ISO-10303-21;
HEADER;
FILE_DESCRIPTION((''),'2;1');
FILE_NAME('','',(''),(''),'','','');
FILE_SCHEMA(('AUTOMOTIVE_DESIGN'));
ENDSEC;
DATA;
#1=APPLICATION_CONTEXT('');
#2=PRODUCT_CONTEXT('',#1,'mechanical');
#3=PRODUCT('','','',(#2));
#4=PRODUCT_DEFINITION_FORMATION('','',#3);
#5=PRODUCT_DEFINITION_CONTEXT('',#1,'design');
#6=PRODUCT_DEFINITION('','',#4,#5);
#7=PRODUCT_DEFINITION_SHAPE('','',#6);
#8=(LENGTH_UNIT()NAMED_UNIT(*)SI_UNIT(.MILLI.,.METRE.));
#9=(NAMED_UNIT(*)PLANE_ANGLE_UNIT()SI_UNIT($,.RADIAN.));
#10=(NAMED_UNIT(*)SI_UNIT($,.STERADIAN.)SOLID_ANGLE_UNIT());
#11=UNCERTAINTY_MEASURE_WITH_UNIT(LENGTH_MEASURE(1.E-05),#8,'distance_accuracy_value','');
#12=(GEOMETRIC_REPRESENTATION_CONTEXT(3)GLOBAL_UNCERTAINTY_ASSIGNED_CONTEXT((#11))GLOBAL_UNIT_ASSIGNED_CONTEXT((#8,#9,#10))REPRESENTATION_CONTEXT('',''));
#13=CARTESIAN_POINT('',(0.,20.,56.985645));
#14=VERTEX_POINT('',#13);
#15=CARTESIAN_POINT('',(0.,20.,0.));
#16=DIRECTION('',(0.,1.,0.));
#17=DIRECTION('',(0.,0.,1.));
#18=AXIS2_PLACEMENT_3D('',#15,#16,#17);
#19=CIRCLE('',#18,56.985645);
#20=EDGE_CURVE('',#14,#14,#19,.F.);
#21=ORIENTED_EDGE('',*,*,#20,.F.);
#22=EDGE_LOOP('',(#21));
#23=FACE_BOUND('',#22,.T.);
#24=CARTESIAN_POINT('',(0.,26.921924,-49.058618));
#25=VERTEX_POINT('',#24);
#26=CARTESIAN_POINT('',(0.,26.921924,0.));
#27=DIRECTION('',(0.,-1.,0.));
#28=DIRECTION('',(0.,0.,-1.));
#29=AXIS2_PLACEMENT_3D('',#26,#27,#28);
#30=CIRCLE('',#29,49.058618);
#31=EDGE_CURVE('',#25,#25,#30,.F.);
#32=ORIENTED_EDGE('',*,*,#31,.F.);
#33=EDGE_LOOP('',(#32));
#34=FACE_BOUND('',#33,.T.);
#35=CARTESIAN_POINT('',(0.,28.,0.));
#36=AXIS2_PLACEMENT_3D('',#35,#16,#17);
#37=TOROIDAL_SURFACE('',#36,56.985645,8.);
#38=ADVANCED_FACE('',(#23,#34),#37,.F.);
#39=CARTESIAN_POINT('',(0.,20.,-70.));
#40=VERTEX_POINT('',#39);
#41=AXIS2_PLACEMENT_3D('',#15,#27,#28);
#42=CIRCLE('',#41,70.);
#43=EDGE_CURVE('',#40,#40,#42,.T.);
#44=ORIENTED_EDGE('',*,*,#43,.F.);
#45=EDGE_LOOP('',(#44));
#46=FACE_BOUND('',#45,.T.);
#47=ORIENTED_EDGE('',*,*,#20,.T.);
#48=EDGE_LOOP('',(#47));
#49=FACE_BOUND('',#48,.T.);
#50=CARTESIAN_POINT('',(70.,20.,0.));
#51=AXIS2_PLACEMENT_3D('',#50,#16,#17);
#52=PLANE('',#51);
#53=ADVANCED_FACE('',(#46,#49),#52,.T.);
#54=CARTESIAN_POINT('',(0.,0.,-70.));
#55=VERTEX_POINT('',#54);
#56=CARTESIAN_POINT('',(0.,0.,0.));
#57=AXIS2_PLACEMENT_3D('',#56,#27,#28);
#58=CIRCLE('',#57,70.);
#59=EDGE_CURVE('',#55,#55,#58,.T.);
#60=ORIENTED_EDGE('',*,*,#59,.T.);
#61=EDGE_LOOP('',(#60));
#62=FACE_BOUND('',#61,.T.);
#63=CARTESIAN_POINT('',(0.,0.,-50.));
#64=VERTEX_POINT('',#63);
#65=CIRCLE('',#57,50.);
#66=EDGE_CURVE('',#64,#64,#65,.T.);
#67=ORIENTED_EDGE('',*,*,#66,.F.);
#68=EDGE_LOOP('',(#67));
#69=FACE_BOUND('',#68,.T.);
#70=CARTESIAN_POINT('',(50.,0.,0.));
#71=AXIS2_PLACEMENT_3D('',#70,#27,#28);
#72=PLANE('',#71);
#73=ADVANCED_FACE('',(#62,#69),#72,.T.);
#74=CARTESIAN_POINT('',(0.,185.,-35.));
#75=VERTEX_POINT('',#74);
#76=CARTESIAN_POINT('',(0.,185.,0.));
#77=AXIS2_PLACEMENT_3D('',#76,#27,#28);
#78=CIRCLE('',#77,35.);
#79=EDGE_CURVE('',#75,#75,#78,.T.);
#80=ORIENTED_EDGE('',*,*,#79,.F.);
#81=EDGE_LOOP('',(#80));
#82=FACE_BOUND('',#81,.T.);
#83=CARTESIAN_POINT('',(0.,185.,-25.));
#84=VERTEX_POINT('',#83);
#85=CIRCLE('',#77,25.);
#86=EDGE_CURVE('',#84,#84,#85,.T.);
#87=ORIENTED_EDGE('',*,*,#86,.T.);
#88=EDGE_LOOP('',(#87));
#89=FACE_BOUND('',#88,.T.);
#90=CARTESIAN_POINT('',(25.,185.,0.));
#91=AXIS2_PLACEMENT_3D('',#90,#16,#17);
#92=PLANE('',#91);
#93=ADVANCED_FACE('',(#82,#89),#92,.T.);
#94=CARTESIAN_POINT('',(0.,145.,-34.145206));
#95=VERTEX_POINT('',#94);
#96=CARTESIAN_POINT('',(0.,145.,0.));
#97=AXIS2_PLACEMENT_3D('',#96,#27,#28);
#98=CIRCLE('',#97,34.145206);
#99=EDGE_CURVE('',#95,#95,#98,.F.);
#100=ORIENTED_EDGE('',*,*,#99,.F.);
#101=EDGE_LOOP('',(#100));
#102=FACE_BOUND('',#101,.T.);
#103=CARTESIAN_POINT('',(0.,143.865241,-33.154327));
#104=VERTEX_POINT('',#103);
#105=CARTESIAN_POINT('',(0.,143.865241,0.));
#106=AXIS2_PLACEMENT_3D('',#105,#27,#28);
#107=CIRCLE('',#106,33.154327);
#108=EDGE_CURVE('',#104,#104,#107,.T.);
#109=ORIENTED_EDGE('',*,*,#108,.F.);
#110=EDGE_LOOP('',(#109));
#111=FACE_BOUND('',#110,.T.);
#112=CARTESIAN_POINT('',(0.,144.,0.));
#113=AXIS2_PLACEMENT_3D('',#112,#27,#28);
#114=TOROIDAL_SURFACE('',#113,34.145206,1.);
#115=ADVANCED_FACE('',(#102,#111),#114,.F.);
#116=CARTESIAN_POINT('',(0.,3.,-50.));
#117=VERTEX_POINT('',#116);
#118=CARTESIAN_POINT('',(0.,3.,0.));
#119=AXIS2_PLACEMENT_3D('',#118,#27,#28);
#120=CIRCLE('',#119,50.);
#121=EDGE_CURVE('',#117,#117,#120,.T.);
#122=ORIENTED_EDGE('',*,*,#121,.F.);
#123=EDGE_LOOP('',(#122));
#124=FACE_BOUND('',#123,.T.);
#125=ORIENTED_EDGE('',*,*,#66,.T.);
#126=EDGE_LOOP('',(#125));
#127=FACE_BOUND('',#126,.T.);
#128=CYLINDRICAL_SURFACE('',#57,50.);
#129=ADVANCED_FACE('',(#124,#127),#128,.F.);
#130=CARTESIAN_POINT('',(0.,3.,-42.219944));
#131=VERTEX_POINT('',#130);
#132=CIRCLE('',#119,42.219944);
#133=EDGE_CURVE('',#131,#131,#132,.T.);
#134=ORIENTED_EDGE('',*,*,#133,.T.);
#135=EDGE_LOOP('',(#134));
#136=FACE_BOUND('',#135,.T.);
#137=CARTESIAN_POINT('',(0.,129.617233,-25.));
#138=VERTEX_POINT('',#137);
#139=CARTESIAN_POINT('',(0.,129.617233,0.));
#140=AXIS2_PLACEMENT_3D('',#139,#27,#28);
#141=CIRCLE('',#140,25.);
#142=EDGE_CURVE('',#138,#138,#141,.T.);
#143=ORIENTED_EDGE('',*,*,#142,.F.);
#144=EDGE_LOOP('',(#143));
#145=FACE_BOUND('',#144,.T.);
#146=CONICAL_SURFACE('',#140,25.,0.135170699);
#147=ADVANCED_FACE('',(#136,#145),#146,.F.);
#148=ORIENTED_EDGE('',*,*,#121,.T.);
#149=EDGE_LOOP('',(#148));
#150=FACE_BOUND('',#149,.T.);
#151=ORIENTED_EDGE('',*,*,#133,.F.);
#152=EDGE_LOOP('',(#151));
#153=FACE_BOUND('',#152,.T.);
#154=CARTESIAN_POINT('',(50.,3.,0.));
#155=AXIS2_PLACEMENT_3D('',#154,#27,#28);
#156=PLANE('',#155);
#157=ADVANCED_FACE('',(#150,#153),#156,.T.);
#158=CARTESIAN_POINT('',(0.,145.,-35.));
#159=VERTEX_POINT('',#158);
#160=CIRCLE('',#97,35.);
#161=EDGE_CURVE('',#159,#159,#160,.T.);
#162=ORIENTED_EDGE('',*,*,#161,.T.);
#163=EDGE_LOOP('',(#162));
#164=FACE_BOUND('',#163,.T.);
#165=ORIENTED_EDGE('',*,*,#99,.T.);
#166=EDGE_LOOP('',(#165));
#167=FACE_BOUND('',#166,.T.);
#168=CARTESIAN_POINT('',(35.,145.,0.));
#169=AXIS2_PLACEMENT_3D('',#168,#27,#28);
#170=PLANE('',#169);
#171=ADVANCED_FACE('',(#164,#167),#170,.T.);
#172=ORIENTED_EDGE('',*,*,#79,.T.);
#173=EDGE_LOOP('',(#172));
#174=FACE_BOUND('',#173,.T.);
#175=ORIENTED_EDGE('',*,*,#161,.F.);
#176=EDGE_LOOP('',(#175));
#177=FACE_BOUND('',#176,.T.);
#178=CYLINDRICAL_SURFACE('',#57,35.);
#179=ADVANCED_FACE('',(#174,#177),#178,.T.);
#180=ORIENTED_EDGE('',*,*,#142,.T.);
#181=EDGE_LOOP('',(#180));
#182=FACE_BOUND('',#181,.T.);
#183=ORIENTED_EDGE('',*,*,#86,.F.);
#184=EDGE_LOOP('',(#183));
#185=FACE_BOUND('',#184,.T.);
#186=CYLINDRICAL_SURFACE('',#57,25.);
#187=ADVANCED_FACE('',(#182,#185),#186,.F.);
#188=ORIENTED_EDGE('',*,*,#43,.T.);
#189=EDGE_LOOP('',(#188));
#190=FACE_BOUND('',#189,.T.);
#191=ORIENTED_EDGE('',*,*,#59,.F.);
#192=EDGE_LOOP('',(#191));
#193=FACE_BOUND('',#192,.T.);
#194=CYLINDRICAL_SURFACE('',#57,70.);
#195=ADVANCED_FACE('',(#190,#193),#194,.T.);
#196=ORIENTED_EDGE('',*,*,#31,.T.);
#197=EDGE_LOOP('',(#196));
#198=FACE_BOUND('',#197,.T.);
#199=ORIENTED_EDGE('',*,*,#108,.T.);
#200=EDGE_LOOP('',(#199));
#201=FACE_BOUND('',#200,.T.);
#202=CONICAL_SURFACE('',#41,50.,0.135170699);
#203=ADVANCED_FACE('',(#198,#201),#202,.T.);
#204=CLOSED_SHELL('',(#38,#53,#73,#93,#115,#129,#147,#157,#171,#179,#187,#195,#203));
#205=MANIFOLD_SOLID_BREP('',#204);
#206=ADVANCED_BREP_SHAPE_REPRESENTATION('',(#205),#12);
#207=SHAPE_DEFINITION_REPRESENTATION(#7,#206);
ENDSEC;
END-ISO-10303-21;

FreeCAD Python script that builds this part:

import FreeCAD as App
import Part
import Sketcher

V = App.Vector


def edges_at(feature, points):
    """Names of the edges that pass closest to the given points."""
    edges = feature.Shape.Edges
    near = lambda p: min(range(len(edges)), key=lambda i: edges[i].distToShape(Part.Vertex(*p))[0])
    return sorted({f"Edge{near(p) + 1}" for p in points})

doc = App.newDocument("Part")
body = doc.addObject("PartDesign::Body", "Body")

sketch1 = body.newObject("Sketcher::SketchObject", "Sketch")
sketch1.AttachmentSupport = (doc.getObject("XY_Plane"), [""])
sketch1.MapMode = "FlatFace"
sketch1.addGeometry([
    Part.LineSegment(V(50, 0, 0), V(70, 0, 0)),
    Part.LineSegment(V(70, 0, 0), V(70, 20, 0)),
    Part.LineSegment(V(70, 20, 0), V(50, 20, 0)),
    Part.LineSegment(V(50, 20, 0), V(33, 145, 0)),
    Part.LineSegment(V(33, 145, 0), V(35, 145, 0)),
    Part.LineSegment(V(35, 145, 0), V(35, 185, 0)),
    Part.LineSegment(V(35, 185, 0), V(25, 185, 0)),
    Part.LineSegment(V(25, 185, 0), V(25, 129.617233, 0)),
    Part.LineSegment(V(25, 129.617233, 0), V(42.219944, 3, 0)),
    Part.LineSegment(V(42.219944, 3, 0), V(50, 3, 0)),
    Part.LineSegment(V(50, 3, 0), V(50, 0, 0)),
], False)
sketch1.addConstraint([
    Sketcher.Constraint("Coincident", 0, 2, 1, 1),
    Sketcher.Constraint("Coincident", 1, 2, 2, 1),
    Sketcher.Constraint("Coincident", 2, 2, 3, 1),
    Sketcher.Constraint("Coincident", 3, 2, 4, 1),
    Sketcher.Constraint("Coincident", 4, 2, 5, 1),
    Sketcher.Constraint("Coincident", 5, 2, 6, 1),
    Sketcher.Constraint("Coincident", 6, 2, 7, 1),
    Sketcher.Constraint("Coincident", 7, 2, 8, 1),
    Sketcher.Constraint("Coincident", 8, 2, 9, 1),
    Sketcher.Constraint("Coincident", 9, 2, 10, 1),
    Sketcher.Constraint("Coincident", 10, 2, 0, 1),
    Sketcher.Constraint("Horizontal", 0),
    Sketcher.Constraint("Vertical", 1),
    Sketcher.Constraint("Horizontal", 2),
    Sketcher.Constraint("Horizontal", 4),
    Sketcher.Constraint("Vertical", 5),
    Sketcher.Constraint("Horizontal", 6),
    Sketcher.Constraint("Vertical", 7),
    Sketcher.Constraint("Horizontal", 9),
    Sketcher.Constraint("Vertical", 10),
    Sketcher.Constraint("PointOnObject", 0, 2, -1),
    Sketcher.Constraint("Parallel", 3, 8),
    Sketcher.Constraint("Vertical", 2, 2, 9, 2),
    Sketcher.Constraint("Equal", 2, 1),
    Sketcher.Constraint("DistanceX", 0, 1, 0, 2, 20.0),
    Sketcher.Constraint("DistanceX", 4, 1, 4, 2, 2.0),
    Sketcher.Constraint("DistanceX", 6, 2, 6, 1, 10.0),
    Sketcher.Constraint("DistanceY", 5, 1, 5, 2, 40.0),
    Sketcher.Constraint("DistanceY", 10, 2, 10, 1, 3.0),
    Sketcher.Constraint("DistanceX", -1, 1, 0, 2, 70.0),
    Sketcher.Constraint("DistanceX", -1, 1, 3, 2, 33.0),
    Sketcher.Constraint("DistanceY", -1, 1, 3, 2, 145.0),
    Sketcher.Constraint("DistanceX", 9, 1, 9, 2, 7.780056),
])
revolution = body.newObject("PartDesign::Revolution", "Revolution")
revolution.Profile = sketch1
revolution.ReferenceAxis = (sketch1, ["V_Axis"])
revolution.Angle = 360
doc.recompute()

fillet = body.newObject("PartDesign::Fillet", "Fillet")
fillet.Base = (revolution, edges_at(revolution, [(0, 20, 50)]))
fillet.Radius = 8
doc.recompute()

fillet2 = body.newObject("PartDesign::Fillet", "Fillet001")
fillet2.Base = (fillet, edges_at(fillet, [(0, 145, 33)]))
fillet2.Radius = 1

doc.recompute()
